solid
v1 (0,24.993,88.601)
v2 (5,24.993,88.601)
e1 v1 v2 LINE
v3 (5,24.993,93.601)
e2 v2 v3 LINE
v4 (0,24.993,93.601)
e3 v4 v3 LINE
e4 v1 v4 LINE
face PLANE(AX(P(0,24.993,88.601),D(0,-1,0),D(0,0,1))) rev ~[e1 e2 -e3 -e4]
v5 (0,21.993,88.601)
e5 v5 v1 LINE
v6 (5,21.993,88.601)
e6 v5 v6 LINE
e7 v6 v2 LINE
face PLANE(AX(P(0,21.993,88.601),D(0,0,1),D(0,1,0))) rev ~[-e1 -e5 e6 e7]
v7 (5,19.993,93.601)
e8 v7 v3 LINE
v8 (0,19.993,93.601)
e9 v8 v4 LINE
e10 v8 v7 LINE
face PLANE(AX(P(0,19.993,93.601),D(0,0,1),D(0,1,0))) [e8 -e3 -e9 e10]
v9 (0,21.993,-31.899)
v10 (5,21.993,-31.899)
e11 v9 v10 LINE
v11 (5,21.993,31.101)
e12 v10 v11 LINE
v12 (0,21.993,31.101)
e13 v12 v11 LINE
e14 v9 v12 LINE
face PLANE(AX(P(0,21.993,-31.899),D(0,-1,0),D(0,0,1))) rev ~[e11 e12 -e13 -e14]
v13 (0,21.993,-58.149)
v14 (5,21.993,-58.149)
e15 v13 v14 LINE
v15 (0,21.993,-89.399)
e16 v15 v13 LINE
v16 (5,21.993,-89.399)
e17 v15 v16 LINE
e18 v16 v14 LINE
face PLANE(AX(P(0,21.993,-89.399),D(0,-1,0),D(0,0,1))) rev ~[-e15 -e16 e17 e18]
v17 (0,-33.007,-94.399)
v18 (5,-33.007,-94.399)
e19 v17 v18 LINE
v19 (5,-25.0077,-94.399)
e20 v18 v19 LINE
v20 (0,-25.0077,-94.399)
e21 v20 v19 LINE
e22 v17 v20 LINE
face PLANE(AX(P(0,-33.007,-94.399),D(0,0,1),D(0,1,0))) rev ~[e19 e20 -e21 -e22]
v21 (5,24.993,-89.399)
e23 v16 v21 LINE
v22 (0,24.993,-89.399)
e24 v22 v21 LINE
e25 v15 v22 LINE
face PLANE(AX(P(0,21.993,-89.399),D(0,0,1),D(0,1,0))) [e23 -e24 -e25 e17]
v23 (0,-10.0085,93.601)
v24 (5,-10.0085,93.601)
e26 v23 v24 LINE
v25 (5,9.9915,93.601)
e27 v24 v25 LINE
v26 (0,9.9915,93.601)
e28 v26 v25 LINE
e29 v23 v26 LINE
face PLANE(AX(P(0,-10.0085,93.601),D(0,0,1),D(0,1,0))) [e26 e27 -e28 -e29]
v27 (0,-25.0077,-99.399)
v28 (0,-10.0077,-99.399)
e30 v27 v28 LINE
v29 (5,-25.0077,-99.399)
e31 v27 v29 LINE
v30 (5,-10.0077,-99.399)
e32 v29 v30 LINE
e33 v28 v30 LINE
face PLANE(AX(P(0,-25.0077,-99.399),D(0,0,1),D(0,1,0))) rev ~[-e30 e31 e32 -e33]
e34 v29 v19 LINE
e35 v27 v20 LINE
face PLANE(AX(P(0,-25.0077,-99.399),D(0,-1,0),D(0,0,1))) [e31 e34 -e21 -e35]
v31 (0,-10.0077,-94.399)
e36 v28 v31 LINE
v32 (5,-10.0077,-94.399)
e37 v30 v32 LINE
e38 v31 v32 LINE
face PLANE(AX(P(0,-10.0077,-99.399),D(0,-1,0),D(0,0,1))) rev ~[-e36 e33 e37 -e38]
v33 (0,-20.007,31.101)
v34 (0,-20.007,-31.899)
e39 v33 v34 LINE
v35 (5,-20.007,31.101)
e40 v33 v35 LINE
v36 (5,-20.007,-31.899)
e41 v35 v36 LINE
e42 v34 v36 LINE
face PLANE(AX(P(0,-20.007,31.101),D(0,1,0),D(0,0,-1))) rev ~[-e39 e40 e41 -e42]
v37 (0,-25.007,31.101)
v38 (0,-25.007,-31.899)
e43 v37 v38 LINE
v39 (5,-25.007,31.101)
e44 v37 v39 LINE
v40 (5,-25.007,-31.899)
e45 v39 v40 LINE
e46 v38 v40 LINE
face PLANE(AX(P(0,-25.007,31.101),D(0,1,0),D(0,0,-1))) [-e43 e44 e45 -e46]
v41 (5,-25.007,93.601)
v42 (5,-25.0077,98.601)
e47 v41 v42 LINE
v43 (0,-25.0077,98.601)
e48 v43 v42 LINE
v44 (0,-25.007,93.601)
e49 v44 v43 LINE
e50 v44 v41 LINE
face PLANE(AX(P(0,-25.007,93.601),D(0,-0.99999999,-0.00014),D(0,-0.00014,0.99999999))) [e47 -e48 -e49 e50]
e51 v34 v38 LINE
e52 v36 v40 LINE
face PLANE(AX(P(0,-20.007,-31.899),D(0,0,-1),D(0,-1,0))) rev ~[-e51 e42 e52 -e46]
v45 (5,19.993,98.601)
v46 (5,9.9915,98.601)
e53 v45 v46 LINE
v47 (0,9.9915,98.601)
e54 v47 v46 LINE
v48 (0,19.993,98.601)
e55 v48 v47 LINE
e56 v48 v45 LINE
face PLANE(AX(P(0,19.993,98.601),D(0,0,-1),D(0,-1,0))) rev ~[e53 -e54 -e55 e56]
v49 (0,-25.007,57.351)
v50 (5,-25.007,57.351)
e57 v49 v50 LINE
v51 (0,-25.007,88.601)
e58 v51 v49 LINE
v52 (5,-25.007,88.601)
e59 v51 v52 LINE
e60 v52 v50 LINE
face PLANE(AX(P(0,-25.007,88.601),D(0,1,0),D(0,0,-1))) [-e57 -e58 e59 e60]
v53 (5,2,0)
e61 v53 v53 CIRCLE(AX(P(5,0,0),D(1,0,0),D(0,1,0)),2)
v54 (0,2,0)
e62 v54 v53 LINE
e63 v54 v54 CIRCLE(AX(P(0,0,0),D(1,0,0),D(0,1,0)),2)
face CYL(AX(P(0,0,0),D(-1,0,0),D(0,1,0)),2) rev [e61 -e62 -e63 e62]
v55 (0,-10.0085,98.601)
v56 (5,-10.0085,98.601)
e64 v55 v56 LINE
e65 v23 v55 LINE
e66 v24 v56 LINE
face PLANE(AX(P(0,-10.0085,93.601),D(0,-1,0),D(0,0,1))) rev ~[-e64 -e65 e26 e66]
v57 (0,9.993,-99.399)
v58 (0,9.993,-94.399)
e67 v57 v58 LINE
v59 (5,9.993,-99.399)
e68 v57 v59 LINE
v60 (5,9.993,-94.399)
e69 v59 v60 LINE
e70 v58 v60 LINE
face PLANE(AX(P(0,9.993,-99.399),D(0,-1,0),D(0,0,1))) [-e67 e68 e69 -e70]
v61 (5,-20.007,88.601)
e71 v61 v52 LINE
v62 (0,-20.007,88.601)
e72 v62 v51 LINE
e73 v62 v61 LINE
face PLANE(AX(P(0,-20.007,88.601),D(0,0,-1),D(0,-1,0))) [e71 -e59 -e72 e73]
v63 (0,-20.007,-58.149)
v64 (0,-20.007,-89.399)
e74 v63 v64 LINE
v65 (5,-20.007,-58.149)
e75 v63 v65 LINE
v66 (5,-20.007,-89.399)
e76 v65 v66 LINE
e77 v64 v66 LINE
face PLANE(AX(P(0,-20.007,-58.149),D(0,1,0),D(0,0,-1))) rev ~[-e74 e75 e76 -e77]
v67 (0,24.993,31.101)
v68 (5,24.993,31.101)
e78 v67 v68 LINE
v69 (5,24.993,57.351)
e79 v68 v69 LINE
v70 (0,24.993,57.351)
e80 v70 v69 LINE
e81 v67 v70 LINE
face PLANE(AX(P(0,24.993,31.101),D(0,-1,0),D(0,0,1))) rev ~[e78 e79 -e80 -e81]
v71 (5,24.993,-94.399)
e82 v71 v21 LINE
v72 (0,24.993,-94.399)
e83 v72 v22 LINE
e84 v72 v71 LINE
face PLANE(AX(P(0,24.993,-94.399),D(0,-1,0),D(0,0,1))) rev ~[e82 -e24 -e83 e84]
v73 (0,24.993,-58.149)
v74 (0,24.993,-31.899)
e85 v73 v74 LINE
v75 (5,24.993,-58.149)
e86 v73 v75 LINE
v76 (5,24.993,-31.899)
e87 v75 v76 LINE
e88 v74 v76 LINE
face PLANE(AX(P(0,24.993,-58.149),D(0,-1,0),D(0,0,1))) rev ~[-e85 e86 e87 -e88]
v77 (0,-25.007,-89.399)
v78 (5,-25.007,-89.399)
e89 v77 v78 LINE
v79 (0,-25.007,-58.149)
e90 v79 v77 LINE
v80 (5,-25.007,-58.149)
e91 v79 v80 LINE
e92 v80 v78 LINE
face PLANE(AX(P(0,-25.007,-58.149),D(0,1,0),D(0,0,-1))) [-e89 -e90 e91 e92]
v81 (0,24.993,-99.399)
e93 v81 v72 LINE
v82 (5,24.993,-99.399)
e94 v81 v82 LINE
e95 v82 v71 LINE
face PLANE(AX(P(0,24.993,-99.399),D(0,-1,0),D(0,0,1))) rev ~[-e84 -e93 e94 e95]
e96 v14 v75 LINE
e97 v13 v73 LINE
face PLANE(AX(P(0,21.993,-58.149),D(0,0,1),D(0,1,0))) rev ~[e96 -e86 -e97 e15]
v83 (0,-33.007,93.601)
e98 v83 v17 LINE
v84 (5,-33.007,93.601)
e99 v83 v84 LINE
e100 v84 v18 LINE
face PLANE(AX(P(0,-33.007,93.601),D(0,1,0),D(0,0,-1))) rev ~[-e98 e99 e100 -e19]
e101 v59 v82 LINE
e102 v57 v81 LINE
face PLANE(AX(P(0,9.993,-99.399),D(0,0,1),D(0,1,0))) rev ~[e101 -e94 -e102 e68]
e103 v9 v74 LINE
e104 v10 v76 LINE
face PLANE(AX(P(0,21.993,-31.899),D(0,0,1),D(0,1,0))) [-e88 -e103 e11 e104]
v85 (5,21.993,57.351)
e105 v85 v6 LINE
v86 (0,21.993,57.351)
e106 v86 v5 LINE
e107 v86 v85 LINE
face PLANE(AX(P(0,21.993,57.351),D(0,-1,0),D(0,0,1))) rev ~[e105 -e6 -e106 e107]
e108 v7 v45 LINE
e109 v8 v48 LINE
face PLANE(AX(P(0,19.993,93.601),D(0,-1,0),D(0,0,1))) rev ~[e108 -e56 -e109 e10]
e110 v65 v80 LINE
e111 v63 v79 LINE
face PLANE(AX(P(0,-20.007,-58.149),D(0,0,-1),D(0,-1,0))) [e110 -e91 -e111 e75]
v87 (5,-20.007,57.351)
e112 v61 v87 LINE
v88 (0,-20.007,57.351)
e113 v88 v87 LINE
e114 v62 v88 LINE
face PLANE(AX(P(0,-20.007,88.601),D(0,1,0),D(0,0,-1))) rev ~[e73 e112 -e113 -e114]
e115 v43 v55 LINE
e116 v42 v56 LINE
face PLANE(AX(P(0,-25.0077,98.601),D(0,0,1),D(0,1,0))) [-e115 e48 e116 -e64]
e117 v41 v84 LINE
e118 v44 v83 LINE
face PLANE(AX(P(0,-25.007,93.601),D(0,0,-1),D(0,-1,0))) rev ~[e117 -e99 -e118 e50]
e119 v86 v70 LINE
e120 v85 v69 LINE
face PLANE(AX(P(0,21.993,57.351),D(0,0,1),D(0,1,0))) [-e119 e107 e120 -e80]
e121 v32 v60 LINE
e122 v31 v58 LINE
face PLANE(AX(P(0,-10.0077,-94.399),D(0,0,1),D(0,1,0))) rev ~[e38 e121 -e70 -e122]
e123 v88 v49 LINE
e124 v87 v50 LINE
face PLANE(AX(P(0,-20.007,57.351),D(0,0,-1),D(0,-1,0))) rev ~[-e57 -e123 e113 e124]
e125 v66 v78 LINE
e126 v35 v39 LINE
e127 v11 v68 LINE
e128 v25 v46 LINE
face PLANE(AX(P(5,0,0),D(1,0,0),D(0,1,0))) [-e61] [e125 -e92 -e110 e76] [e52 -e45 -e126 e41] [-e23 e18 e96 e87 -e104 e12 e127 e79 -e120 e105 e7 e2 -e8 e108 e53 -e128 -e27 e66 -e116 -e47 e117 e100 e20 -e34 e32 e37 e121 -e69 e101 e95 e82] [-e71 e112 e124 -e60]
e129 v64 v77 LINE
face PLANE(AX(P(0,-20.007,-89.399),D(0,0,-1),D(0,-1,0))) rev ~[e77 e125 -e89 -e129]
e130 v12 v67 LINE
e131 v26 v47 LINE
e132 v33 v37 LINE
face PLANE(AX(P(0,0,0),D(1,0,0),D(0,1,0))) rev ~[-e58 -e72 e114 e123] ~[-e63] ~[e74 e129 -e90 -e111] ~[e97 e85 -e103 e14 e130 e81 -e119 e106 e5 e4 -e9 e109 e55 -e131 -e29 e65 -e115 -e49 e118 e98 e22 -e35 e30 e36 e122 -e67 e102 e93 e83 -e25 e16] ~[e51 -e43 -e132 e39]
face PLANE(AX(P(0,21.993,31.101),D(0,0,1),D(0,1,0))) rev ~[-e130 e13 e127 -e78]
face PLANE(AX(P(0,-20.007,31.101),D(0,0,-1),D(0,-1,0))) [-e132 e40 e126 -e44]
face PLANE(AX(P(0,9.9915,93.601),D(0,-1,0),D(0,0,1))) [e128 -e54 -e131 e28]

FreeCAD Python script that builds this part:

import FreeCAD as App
import Part
import Sketcher
Q = App.Units.Quantity

doc = App.newDocument("Part")
params = doc.addObject("Spreadsheet::Sheet", "Params")
for row, (alias, value) in enumerate([
    ("sketch1_diameter", "4 mm"),
    ("sketch1_width", "5 mm"),
    ("sketch1_width2", "8 mm"),
    ("sketch1_width3", "3 mm"),
    ("sketch1_height", "188 mm"),
    ("pad1_length", "5 mm"),
], start=1):
    params.set(f"A{row}", alias)
    params.set(f"B{row}", "=" + value)
    params.setAlias(f"B{row}", alias)

body = doc.addObject("PartDesign::Body", "Body")

# Sketch on YZ plane
sketch1 = body.newObject("Sketcher::SketchObject", "Sketch")
sketch1.AttachmentSupport = (doc.getObject("YZ_Plane"), [""])
sketch1.MapMode = "FlatFace"
sketch1.addGeometry(Part.LineSegment(App.Vector(25, 93.6, 0), App.Vector(20, 93.6, 0)), False)
sketch1.addGeometry(Part.LineSegment(App.Vector(20, 93.6, 0), App.Vector(20, 98.6, 0)), False)
sketch1.addGeometry(Part.LineSegment(App.Vector(20, 98.6, 0), App.Vector(10, 98.6, 0)), False)
sketch1.addGeometry(Part.LineSegment(App.Vector(10, 98.6, 0), App.Vector(10, 93.6, 0)), False)
sketch1.addGeometry(Part.LineSegment(App.Vector(10, 93.6, 0), App.Vector(-10, 93.6, 0)), False)
sketch1.addGeometry(Part.LineSegment(App.Vector(-10, 93.6, 0), App.Vector(-10, 98.6, 0)), False)
sketch1.addGeometry(Part.LineSegment(App.Vector(-10, 98.6, 0), App.Vector(-25, 98.6, 0)), False)
sketch1.addGeometry(Part.LineSegment(App.Vector(-25, 98.6, 0), App.Vector(-25, 93.6, 0)), False)
sketch1.addGeometry(Part.LineSegment(App.Vector(-25, 93.6, 0), App.Vector(-33, 93.6, 0)), False)
sketch1.addGeometry(Part.LineSegment(App.Vector(-33, 93.6, 0), App.Vector(-33, -94.4, 0)), False)
sketch1.addGeometry(Part.LineSegment(App.Vector(-33, -94.4, 0), App.Vector(-25, -94.4, 0)), False)
sketch1.addGeometry(Part.LineSegment(App.Vector(-25, -94.4, 0), App.Vector(-25, -99.4, 0)), False)
sketch1.addGeometry(Part.LineSegment(App.Vector(-25, -99.4, 0), App.Vector(-10, -99.4, 0)), False)
sketch1.addGeometry(Part.LineSegment(App.Vector(-10, -99.4, 0), App.Vector(-10, -94.4, 0)), False)
sketch1.addGeometry(Part.LineSegment(App.Vector(-10, -94.4, 0), App.Vector(10, -94.4, 0)), False)
sketch1.addGeometry(Part.LineSegment(App.Vector(10, -94.4, 0), App.Vector(10, -99.4, 0)), False)
sketch1.addGeometry(Part.LineSegment(App.Vector(10, -99.4, 0), App.Vector(25, -99.4, 0)), False)
sketch1.addGeometry(Part.LineSegment(App.Vector(25, -99.4, 0), App.Vector(25, -89.4, 0)), False)
sketch1.addGeometry(Part.LineSegment(App.Vector(25, -89.4, 0), App.Vector(22, -89.4, 0)), False)
sketch1.addGeometry(Part.LineSegment(App.Vector(22, -89.4, 0), App.Vector(22, -58.1, 0)), False)
sketch1.addGeometry(Part.LineSegment(App.Vector(22, -58.1, 0), App.Vector(25, -58.1, 0)), False)
sketch1.addGeometry(Part.LineSegment(App.Vector(25, -58.1, 0), App.Vector(25, -31.9, 0)), False)
sketch1.addGeometry(Part.LineSegment(App.Vector(25, -31.9, 0), App.Vector(22, -31.9, 0)), False)
sketch1.addGeometry(Part.LineSegment(App.Vector(22, -31.9, 0), App.Vector(22, 31.1, 0)), False)
sketch1.addGeometry(Part.LineSegment(App.Vector(22, 31.1, 0), App.Vector(25, 31.1, 0)), False)
sketch1.addGeometry(Part.LineSegment(App.Vector(25, 31.1, 0), App.Vector(25, 57.4, 0)), False)
sketch1.addGeometry(Part.LineSegment(App.Vector(25, 57.4, 0), App.Vector(22, 57.4, 0)), False)
sketch1.addGeometry(Part.LineSegment(App.Vector(22, 57.4, 0), App.Vector(22, 88.6, 0)), False)
sketch1.addGeometry(Part.LineSegment(App.Vector(22, 88.6, 0), App.Vector(25, 88.6, 0)), False)
sketch1.addGeometry(Part.LineSegment(App.Vector(25, 88.6, 0), App.Vector(25, 93.6, 0)), False)
sketch1.addGeometry(Part.LineSegment(App.Vector(-25, -58.1, 0), App.Vector(-20, -58.1, 0)), False)
sketch1.addGeometry(Part.LineSegment(App.Vector(-20, -58.1, 0), App.Vector(-20, -89.4, 0)), False)
sketch1.addGeometry(Part.LineSegment(App.Vector(-20, -89.4, 0), App.Vector(-25, -89.4, 0)), False)
sketch1.addGeometry(Part.LineSegment(App.Vector(-25, -89.4, 0), App.Vector(-25, -58.1, 0)), False)
sketch1.addGeometry(Part.LineSegment(App.Vector(-25, 31.1, 0), App.Vector(-20, 31.1, 0)), False)
sketch1.addGeometry(Part.LineSegment(App.Vector(-20, 31.1, 0), App.Vector(-20, -31.9, 0)), False)
sketch1.addGeometry(Part.LineSegment(App.Vector(-20, -31.9, 0), App.Vector(-25, -31.9, 0)), False)
sketch1.addGeometry(Part.LineSegment(App.Vector(-25, -31.9, 0), App.Vector(-25, 31.1, 0)), False)
sketch1.addGeometry(Part.LineSegment(App.Vector(-25, 88.6, 0), App.Vector(-20, 88.6, 0)), False)
sketch1.addGeometry(Part.LineSegment(App.Vector(-20, 88.6, 0), App.Vector(-20, 57.4, 0)), False)
sketch1.addGeometry(Part.LineSegment(App.Vector(-20, 57.4, 0), App.Vector(-25, 57.4, 0)), False)
sketch1.addGeometry(Part.LineSegment(App.Vector(-25, 57.4, 0), App.Vector(-25, 88.6, 0)), False)
sketch1.addGeometry(Part.Circle(App.Vector(0, 0, 0), App.Vector(0, 0, 1), 2), False)
sketch1.addConstraint(Sketcher.Constraint("Coincident", 0, 2, 1, 1))
sketch1.addConstraint(Sketcher.Constraint("Coincident", 1, 2, 2, 1))
sketch1.addConstraint(Sketcher.Constraint("Coincident", 2, 2, 3, 1))
sketch1.addConstraint(Sketcher.Constraint("Coincident", 3, 2, 4, 1))
sketch1.addConstraint(Sketcher.Constraint("Coincident", 4, 2, 5, 1))
sketch1.addConstraint(Sketcher.Constraint("Coincident", 5, 2, 6, 1))
sketch1.addConstraint(Sketcher.Constraint("Coincident", 6, 2, 7, 1))
sketch1.addConstraint(Sketcher.Constraint("Coincident", 7, 2, 8, 1))
sketch1.addConstraint(Sketcher.Constraint("Coincident", 8, 2, 9, 1))
sketch1.addConstraint(Sketcher.Constraint("Coincident", 9, 2, 10, 1))
sketch1.addConstraint(Sketcher.Constraint("Coincident", 10, 2, 11, 1))
sketch1.addConstraint(Sketcher.Constraint("Coincident", 11, 2, 12, 1))
sketch1.addConstraint(Sketcher.Constraint("Coincident", 12, 2, 13, 1))
sketch1.addConstraint(Sketcher.Constraint("Coincident", 13, 2, 14, 1))
sketch1.addConstraint(Sketcher.Constraint("Coincident", 14, 2, 15, 1))
sketch1.addConstraint(Sketcher.Constraint("Coincident", 15, 2, 16, 1))
sketch1.addConstraint(Sketcher.Constraint("Coincident", 16, 2, 17, 1))
sketch1.addConstraint(Sketcher.Constraint("Coincident", 17, 2, 18, 1))
sketch1.addConstraint(Sketcher.Constraint("Coincident", 18, 2, 19, 1))
sketch1.addConstraint(Sketcher.Constraint("Coincident", 19, 2, 20, 1))
sketch1.addConstraint(Sketcher.Constraint("Coincident", 20, 2, 21, 1))
sketch1.addConstraint(Sketcher.Constraint("Coincident", 21, 2, 22, 1))
sketch1.addConstraint(Sketcher.Constraint("Coincident", 22, 2, 23, 1))
sketch1.addConstraint(Sketcher.Constraint("Coincident", 23, 2, 24, 1))
sketch1.addConstraint(Sketcher.Constraint("Coincident", 24, 2, 25, 1))
sketch1.addConstraint(Sketcher.Constraint("Coincident", 25, 2, 26, 1))
sketch1.addConstraint(Sketcher.Constraint("Coincident", 26, 2, 27, 1))
sketch1.addConstraint(Sketcher.Constraint("Coincident", 27, 2, 28, 1))
sketch1.addConstraint(Sketcher.Constraint("Coincident", 28, 2, 29, 1))
sketch1.addConstraint(Sketcher.Constraint("Coincident", 29, 2, 0, 1))
sketch1.addConstraint(Sketcher.Constraint("Coincident", 30, 2, 31, 1))
sketch1.addConstraint(Sketcher.Constraint("Coincident", 31, 2, 32, 1))
sketch1.addConstraint(Sketcher.Constraint("Coincident", 32, 2, 33, 1))
sketch1.addConstraint(Sketcher.Constraint("Coincident", 33, 2, 30, 1))
sketch1.addConstraint(Sketcher.Constraint("Coincident", 34, 2, 35, 1))
sketch1.addConstraint(Sketcher.Constraint("Coincident", 35, 2, 36, 1))
sketch1.addConstraint(Sketcher.Constraint("Coincident", 36, 2, 37, 1))
sketch1.addConstraint(Sketcher.Constraint("Coincident", 37, 2, 34, 1))
sketch1.addConstraint(Sketcher.Constraint("Coincident", 38, 2, 39, 1))
sketch1.addConstraint(Sketcher.Constraint("Coincident", 39, 2, 40, 1))
sketch1.addConstraint(Sketcher.Constraint("Coincident", 40, 2, 41, 1))
sketch1.addConstraint(Sketcher.Constraint("Coincident", 41, 2, 38, 1))
sketch1.addConstraint(Sketcher.Constraint("Horizontal", 0))
sketch1.addConstraint(Sketcher.Constraint("Vertical", 1))
sketch1.addConstraint(Sketcher.Constraint("Horizontal", 2))
sketch1.addConstraint(Sketcher.Constraint("Vertical", 3))
sketch1.addConstraint(Sketcher.Constraint("Horizontal", 4))
sketch1.addConstraint(Sketcher.Constraint("Vertical", 5))
sketch1.addConstraint(Sketcher.Constraint("Horizontal", 6))
sketch1.addConstraint(Sketcher.Constraint("Horizontal", 8))
sketch1.addConstraint(Sketcher.Constraint("Vertical", 9))
sketch1.addConstraint(Sketcher.Constraint("Horizontal", 10))
sketch1.addConstraint(Sketcher.Constraint("Vertical", 11))
sketch1.addConstraint(Sketcher.Constraint("Horizontal", 12))
sketch1.addConstraint(Sketcher.Constraint("Vertical", 13))
sketch1.addConstraint(Sketcher.Constraint("Horizontal", 14))
sketch1.addConstraint(Sketcher.Constraint("Vertical", 15))
sketch1.addConstraint(Sketcher.Constraint("Horizontal", 16))
sketch1.addConstraint(Sketcher.Constraint("Vertical", 17))
sketch1.addConstraint(Sketcher.Constraint("Horizontal", 18))
sketch1.addConstraint(Sketcher.Constraint("Vertical", 19))
sketch1.addConstraint(Sketcher.Constraint("Horizontal", 20))
sketch1.addConstraint(Sketcher.Constraint("Vertical", 21))
sketch1.addConstraint(Sketcher.Constraint("Horizontal", 22))
sketch1.addConstraint(Sketcher.Constraint("Vertical", 23))
sketch1.addConstraint(Sketcher.Constraint("Horizontal", 24))
sketch1.addConstraint(Sketcher.Constraint("Vertical", 25))
sketch1.addConstraint(Sketcher.Constraint("Horizontal", 26))
sketch1.addConstraint(Sketcher.Constraint("Vertical", 27))
sketch1.addConstraint(Sketcher.Constraint("Horizontal", 28))
sketch1.addConstraint(Sketcher.Constraint("Vertical", 29))
sketch1.addConstraint(Sketcher.Constraint("Horizontal", 30))
sketch1.addConstraint(Sketcher.Constraint("Vertical", 31))
sketch1.addConstraint(Sketcher.Constraint("Horizontal", 32))
sketch1.addConstraint(Sketcher.Constraint("Vertical", 33))
sketch1.addConstraint(Sketcher.Constraint("Horizontal", 34))
sketch1.addConstraint(Sketcher.Constraint("Vertical", 35))
sketch1.addConstraint(Sketcher.Constraint("Horizontal", 36))
sketch1.addConstraint(Sketcher.Constraint("Vertical", 37))
sketch1.addConstraint(Sketcher.Constraint("Horizontal", 38))
sketch1.addConstraint(Sketcher.Constraint("Vertical", 39))
sketch1.addConstraint(Sketcher.Constraint("Horizontal", 40))
sketch1.addConstraint(Sketcher.Constraint("Vertical", 41))
sketch1.addConstraint(Sketcher.Constraint("Coincident", 42, 3, -1, 1))
sketch1.addConstraint(Sketcher.Constraint("Horizontal", 0, 2, 3, 2))
sketch1.addConstraint(Sketcher.Constraint("Horizontal", 2, 2, 5, 2))
sketch1.addConstraint(Sketcher.Constraint("Horizontal", 4, 2, 7, 2))
sketch1.addConstraint(Sketcher.Constraint("Horizontal", 10, 2, 13, 2))
sketch1.addConstraint(Sketcher.Constraint("Horizontal", 12, 2, 15, 2))
sketch1.addConstraint(Sketcher.Constraint("Horizontal", 20, 2, 30, 2))
sketch1.addConstraint(Sketcher.Constraint("Horizontal", 18, 2, 31, 2))
sketch1.addConstraint(Sketcher.Constraint("Horizontal", 24, 2, 34, 2))
sketch1.addConstraint(Sketcher.Constraint("Horizontal", 22, 2, 35, 2))
sketch1.addConstraint(Sketcher.Constraint("Horizontal", 28, 2, 38, 2))
sketch1.addConstraint(Sketcher.Constraint("Horizontal", 26, 2, 39, 2))
sketch1.addConstraint(Sketcher.Constraint("Vertical", 6, 2, 10, 2))
sketch1.addConstraint(Sketcher.Constraint("Vertical", 17, 2, 20, 2))
sketch1.addConstraint(Sketcher.Constraint("Vertical", 19, 2, 22, 2))
sketch1.addConstraint(Sketcher.Constraint("Vertical", 21, 2, 24, 2))
sketch1.addConstraint(Sketcher.Constraint("Vertical", 23, 2, 26, 2))
sketch1.addConstraint(Sketcher.Constraint("Vertical", 25, 2, 28, 2))
sketch1.addConstraint(Sketcher.Constraint("Vertical", 7, 2, 32, 2))
sketch1.addConstraint(Sketcher.Constraint("Vertical", 31, 2, 34, 2))
sketch1.addConstraint(Sketcher.Constraint("Vertical", 33, 2, 36, 2))
sketch1.addConstraint(Sketcher.Constraint("Vertical", 35, 2, 38, 2))
sketch1.addConstraint(Sketcher.Constraint("Vertical", 37, 2, 40, 2))
sketch1.addConstraint(Sketcher.Constraint("Equal", 12, 16))
sketch1.addConstraint(Sketcher.Constraint("Equal", 0, 30))
sketch1.addConstraint(Sketcher.Constraint("Equal", 40, 1))
sketch1.addConstraint(Sketcher.Constraint("Equal", 5, 11))
sketch1.addConstraint(Sketcher.Constraint("Equal", 21, 25))
sketch1.addConstraint(Sketcher.Constraint("Equal", 19, 27))
sketch1.addConstraint(Sketcher.Constraint("Equal", 15, 29))
sketch1.addConstraint(Sketcher.Constraint("Diameter", 42, Q("4 mm")))
sketch1.addConstraint(Sketcher.Constraint("DistanceX", 0, 2, 0, 1, Q("5 mm")))
sketch1.addConstraint(Sketcher.Constraint("DistanceX", 8, 2, 8, 1, Q("8 mm")))
sketch1.addConstraint(Sketcher.Constraint("DistanceX", 18, 2, 18, 1, Q("3 mm")))
sketch1.addConstraint(Sketcher.Constraint("DistanceY", 9, 2, 9, 1, Q("188 mm")))
sketch1.addConstraint(Sketcher.Constraint("DistanceY", 14, 2, 17, 2, Q("5 mm")))
sketch1.addConstraint(Sketcher.Constraint("DistanceX", 4, 2, 4, 1, Q("20 mm")))
sketch1.addConstraint(Sketcher.Constraint("DistanceX", 12, 1, 12, 2, Q("15 mm")))
sketch1.addConstraint(Sketcher.Constraint("DistanceY", 23, 1, 23, 2, Q("63 mm")))
sketch1.addConstraint(Sketcher.Constraint("DistanceX", 9, 2, 14, 2, Q("43 mm")))
sketch1.addConstraint(Sketcher.Constraint("DistanceY", 19, 1, 19, 2, Q("31.25 mm")))
sketch1.addConstraint(Sketcher.Constraint("DistanceX", 2, 2, 2, 1, Q("10.0015 mm")))
sketch1.addConstraint(Sketcher.Constraint("DistanceX", 6, 2, 6, 1, Q("14.9992 mm")))
sketch1.addConstraint(Sketcher.Constraint("DistanceX", -1, 1, 0, 2, Q("19.993 mm")))
sketch1.addConstraint(Sketcher.Constraint("DistanceY", -1, 1, 0, 2, Q("93.601 mm")))
sketch1.setExpression("Constraints[113]", "Params.sketch1_diameter")
sketch1.setExpression("Constraints[114]", "Params.sketch1_width")
sketch1.setExpression("Constraints[115]", "Params.sketch1_width2")
sketch1.setExpression("Constraints[116]", "Params.sketch1_width3")
sketch1.setExpression("Constraints[117]", "Params.sketch1_height")
pad1 = body.newObject("PartDesign::Pad", "Pad")
pad1.Profile = sketch1
pad1.setExpression("Length", "Params.pad1_length")

doc.recompute()
